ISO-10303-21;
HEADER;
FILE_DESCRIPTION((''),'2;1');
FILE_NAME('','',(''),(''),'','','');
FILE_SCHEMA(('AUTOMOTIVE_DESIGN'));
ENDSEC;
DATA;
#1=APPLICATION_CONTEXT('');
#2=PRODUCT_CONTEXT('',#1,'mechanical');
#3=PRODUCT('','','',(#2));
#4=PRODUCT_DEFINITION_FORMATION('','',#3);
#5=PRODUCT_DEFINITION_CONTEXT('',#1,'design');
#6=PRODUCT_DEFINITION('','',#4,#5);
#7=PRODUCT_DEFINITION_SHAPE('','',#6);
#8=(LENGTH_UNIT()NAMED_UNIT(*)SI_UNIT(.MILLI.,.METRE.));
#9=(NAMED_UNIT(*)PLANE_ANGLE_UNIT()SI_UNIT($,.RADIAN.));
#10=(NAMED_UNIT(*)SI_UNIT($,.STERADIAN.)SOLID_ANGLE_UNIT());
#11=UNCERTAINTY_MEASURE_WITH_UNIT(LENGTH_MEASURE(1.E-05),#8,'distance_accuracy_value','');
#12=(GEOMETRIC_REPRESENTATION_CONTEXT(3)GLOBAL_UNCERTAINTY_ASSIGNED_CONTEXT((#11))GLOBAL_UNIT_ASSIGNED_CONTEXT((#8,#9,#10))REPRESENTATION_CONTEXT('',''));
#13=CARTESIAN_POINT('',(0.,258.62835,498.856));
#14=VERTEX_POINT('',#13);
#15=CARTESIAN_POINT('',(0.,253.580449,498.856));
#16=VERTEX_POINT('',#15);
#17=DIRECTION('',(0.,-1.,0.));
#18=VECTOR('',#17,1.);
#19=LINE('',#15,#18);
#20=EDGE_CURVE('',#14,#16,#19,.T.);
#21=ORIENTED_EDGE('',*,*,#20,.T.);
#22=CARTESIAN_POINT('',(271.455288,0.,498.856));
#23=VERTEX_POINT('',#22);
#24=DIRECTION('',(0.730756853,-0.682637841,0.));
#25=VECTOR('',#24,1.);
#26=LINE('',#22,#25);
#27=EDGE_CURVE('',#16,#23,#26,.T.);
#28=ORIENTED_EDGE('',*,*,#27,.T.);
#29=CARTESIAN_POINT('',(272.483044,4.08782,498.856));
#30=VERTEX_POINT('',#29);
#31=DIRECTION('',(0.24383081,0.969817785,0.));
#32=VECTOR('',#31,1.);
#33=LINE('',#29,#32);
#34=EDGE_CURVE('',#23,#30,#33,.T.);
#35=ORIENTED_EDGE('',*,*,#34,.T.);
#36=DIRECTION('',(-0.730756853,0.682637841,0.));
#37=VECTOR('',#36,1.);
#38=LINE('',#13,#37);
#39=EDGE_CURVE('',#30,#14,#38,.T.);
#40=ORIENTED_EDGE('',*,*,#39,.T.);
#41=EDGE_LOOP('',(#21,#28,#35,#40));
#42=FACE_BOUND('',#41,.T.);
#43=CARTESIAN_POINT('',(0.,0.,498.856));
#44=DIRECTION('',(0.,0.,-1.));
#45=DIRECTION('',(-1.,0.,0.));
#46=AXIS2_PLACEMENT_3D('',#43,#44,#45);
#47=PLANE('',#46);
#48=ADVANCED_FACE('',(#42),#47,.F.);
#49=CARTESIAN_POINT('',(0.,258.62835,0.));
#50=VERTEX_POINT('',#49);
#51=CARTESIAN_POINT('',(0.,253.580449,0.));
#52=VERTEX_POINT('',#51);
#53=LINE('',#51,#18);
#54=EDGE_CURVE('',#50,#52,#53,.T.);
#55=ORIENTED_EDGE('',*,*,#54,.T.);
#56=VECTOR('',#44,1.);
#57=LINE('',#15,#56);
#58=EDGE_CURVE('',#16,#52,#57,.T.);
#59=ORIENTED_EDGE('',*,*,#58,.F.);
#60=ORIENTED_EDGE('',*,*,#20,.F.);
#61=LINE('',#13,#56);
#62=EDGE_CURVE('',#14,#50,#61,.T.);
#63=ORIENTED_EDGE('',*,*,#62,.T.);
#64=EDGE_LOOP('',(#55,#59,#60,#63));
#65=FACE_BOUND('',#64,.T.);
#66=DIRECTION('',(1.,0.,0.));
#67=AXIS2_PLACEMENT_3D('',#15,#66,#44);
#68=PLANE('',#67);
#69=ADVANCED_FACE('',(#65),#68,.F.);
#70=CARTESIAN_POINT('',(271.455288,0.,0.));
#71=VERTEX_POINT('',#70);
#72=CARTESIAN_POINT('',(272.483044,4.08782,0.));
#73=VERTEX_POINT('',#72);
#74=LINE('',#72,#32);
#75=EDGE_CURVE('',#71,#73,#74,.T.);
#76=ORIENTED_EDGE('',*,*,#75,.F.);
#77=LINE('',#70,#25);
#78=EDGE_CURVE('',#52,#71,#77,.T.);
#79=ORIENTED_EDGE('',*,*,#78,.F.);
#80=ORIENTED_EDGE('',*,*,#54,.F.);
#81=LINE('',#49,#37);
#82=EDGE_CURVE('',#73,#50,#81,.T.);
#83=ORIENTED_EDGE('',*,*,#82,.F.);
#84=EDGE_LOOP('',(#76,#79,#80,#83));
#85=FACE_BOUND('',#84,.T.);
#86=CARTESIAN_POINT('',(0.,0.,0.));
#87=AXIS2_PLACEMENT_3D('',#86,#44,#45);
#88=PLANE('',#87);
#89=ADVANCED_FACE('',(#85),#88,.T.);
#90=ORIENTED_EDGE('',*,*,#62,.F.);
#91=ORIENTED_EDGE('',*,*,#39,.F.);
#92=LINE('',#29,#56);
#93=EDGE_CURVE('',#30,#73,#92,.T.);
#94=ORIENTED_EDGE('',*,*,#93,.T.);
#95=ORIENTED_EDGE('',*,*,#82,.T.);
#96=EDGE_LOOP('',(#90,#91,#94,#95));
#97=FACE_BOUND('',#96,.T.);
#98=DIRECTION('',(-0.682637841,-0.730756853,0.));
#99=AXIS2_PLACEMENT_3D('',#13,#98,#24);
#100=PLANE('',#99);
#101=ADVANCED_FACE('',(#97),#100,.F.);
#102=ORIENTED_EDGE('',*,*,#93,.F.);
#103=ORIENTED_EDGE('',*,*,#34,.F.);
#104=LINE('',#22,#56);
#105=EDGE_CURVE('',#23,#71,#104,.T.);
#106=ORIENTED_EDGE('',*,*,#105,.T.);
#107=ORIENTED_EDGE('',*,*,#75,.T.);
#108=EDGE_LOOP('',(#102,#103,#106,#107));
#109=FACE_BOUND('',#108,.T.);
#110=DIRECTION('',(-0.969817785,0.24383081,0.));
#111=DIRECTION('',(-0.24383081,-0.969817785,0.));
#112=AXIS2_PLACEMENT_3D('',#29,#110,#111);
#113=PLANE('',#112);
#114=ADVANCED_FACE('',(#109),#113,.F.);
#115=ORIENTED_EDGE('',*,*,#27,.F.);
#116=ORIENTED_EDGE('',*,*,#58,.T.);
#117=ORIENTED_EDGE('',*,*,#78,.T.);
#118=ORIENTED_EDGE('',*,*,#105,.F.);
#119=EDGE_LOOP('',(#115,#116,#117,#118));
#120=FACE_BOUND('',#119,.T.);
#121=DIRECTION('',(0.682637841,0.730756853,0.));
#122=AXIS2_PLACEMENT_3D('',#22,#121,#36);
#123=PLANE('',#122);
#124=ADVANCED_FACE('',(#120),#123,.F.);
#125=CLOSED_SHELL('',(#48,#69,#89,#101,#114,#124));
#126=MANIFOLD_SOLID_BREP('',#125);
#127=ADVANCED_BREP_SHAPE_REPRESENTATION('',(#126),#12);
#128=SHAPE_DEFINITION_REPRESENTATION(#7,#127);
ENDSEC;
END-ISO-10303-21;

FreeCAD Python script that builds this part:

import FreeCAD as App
import Part
import Sketcher
from FreeCAD import Vector
Q = App.Units.Quantity


def add_polygon(sketch, points):
    """Adds a closed chain of lines whose ends are joined by coincident constraints."""
    first, n = sketch.GeometryCount, len(points)
    for a, b in zip(points, points[1:] + points[:1]):
        sketch.addGeometry(Part.LineSegment(App.Vector(*a, 0), App.Vector(*b, 0)), False)
    for i in range(n):
        sketch.addConstraint(Sketcher.Constraint("Coincident", first + i, 2, first + (i + 1) % n, 1))

doc = App.newDocument("Part")
body = doc.addObject("PartDesign::Body", "Body")

# Sketch on XY plane
sketch1 = doc.addObject("Sketcher::SketchObject", "Sketch")
body.addObject(sketch1)
sketch1.AttachmentSupport = (doc.XY_Plane, [""])
sketch1.MapMode = "FlatFace"
add_polygon(sketch1, [(0, 253.6), (271.5, 0), (272.5, 4.1), (0, 258.6)])  # lines 0-3
sketch1.addConstraint([
    Sketcher.Constraint("Vertical", 3),
    Sketcher.Constraint("PointOnObject", 0, 2, -1),
    Sketcher.Constraint("PointOnObject", 2, 2, -2),
    Sketcher.Constraint("Parallel", 0, 2),
    Sketcher.Constraint("DistanceY", 3, 2, 3, 1, Q("5.047901 mm")),
    Sketcher.Constraint("Distance", 1, Q("4.21504 mm")),
    Sketcher.Constraint("Distance", 2, Q("372.87785 mm")),
    Sketcher.Constraint("DistanceY", -1, 1, 2, 2, Q("258.62835 mm")),
])
pad1 = doc.addObject("PartDesign::Pad", "Pad")
body.addObject(pad1)
pad1.Profile = sketch1
pad1.Length = Q("19.64 in")

doc.recompute()
